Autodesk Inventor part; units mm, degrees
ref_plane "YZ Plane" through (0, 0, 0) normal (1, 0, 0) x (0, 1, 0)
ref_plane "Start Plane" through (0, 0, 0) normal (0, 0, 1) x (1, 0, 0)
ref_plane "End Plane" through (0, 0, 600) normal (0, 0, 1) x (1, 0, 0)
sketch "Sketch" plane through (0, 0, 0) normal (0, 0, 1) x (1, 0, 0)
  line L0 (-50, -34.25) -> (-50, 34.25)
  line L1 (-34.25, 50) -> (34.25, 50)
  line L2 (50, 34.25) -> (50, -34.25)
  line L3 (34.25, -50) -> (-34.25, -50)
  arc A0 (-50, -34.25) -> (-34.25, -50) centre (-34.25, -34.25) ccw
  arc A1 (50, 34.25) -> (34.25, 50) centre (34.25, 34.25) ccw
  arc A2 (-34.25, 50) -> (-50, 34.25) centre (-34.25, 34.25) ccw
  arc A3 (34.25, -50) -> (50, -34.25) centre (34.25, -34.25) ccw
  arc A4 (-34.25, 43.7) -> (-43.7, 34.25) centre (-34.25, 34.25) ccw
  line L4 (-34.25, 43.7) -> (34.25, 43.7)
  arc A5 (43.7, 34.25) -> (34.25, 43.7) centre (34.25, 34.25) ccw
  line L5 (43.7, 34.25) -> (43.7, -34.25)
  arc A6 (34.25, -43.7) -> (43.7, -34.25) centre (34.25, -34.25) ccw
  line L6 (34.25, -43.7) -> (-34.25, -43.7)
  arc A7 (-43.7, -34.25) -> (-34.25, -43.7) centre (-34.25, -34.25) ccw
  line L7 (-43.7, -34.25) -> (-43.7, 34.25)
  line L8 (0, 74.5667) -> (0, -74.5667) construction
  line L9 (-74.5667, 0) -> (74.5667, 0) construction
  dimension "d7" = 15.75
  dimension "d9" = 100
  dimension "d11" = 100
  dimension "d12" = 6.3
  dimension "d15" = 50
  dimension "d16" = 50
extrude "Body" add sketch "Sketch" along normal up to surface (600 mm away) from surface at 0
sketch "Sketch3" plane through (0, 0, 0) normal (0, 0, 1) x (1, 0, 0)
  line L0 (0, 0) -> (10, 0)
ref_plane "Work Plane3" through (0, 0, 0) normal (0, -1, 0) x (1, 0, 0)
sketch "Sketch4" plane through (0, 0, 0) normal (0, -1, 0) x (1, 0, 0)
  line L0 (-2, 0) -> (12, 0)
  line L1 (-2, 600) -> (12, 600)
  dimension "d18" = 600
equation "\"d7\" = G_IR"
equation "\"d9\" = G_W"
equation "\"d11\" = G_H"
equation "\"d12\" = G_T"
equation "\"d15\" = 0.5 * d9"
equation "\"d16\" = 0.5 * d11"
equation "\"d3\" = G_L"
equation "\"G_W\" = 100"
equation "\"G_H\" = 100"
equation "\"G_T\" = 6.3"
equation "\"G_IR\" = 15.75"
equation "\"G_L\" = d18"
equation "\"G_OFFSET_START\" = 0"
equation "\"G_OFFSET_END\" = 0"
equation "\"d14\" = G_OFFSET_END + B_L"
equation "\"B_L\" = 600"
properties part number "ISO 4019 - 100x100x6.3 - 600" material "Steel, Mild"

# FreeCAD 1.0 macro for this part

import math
import FreeCAD as App
import Part
import Sketcher

V = App.Vector
Q = App.Units.Quantity

doc = App.newDocument("Part")
body = doc.addObject("PartDesign::Body", "Body")

sketch1 = doc.addObject("Sketcher::SketchObject", "Sketch")
body.addObject(sketch1)
sketch1.AttachmentSupport = (doc.XY_Plane, [""])
sketch1.MapMode = "FlatFace"
sketch1.addGeometry([
    Part.LineSegment(V(-50, 34.25, 0), V(-50, -34.25, 0)),
    Part.ArcOfCircle(Part.Circle(V(-34.25, -34.25, 0), V(0, 0, 1), 15.75), math.radians(180), math.radians(270)),
    Part.LineSegment(V(-34.25, -50, 0), V(34.25, -50, 0)),
    Part.ArcOfCircle(Part.Circle(V(34.25, -34.25, 0), V(0, 0, 1), 15.75), math.radians(-90), math.radians(0)),
    Part.LineSegment(V(50, -34.25, 0), V(50, 34.25, 0)),
    Part.ArcOfCircle(Part.Circle(V(34.25, 34.25, 0), V(0, 0, 1), 15.75), math.radians(0), math.radians(90)),
    Part.LineSegment(V(34.25, 50, 0), V(-34.25, 50, 0)),
    Part.ArcOfCircle(Part.Circle(V(-34.25, 34.25, 0), V(0, 0, 1), 15.75), math.radians(90), math.radians(180)),
    Part.ArcOfCircle(Part.Circle(V(-34.25, 34.25, 0), V(0, 0, 1), 9.45), math.radians(90), math.radians(180)),
    Part.LineSegment(V(-34.25, 43.7, 0), V(34.25, 43.7, 0)),
    Part.ArcOfCircle(Part.Circle(V(34.25, 34.25, 0), V(0, 0, 1), 9.45), math.radians(0), math.radians(90)),
    Part.LineSegment(V(43.7, 34.25, 0), V(43.7, -34.25, 0)),
    Part.ArcOfCircle(Part.Circle(V(34.25, -34.25, 0), V(0, 0, 1), 9.45), math.radians(-90), math.radians(0)),
    Part.LineSegment(V(34.25, -43.7, 0), V(-34.25, -43.7, 0)),
    Part.ArcOfCircle(Part.Circle(V(-34.25, -34.25, 0), V(0, 0, 1), 9.45), math.radians(180), math.radians(270)),
    Part.LineSegment(V(-43.7, -34.25, 0), V(-43.7, 34.25, 0)),
], False)
sketch1.addConstraint([
    Sketcher.Constraint("Tangent", 0, 2, 1, 1),
    Sketcher.Constraint("Tangent", 1, 2, 2, 1),
    Sketcher.Constraint("Tangent", 2, 2, 3, 1),
    Sketcher.Constraint("Tangent", 3, 2, 4, 1),
    Sketcher.Constraint("Tangent", 4, 2, 5, 1),
    Sketcher.Constraint("Tangent", 5, 2, 6, 1),
    Sketcher.Constraint("Tangent", 6, 2, 7, 1),
    Sketcher.Constraint("Tangent", 7, 2, 0, 1),
    Sketcher.Constraint("Tangent", 8, 1, 9, 1),
    Sketcher.Constraint("Tangent", 9, 2, 10, 2),
    Sketcher.Constraint("Tangent", 10, 1, 11, 1),
    Sketcher.Constraint("Tangent", 11, 2, 12, 2),
    Sketcher.Constraint("Tangent", 12, 1, 13, 1),
    Sketcher.Constraint("Tangent", 13, 2, 14, 2),
    Sketcher.Constraint("Tangent", 14, 1, 15, 1),
    Sketcher.Constraint("Tangent", 15, 2, 8, 2),
    Sketcher.Constraint("Vertical", 0),
    Sketcher.Constraint("Horizontal", 2),
    Sketcher.Constraint("Vertical", 4),
    Sketcher.Constraint("Horizontal", 6),
    Sketcher.Constraint("Horizontal", 9),
    Sketcher.Constraint("Vertical", 11),
    Sketcher.Constraint("Horizontal", 13),
    Sketcher.Constraint("Vertical", 15),
    Sketcher.Constraint("Coincident", 8, 3, 7, 3),
    Sketcher.Constraint("Coincident", 10, 3, 5, 3),
    Sketcher.Constraint("Coincident", 12, 3, 3, 3),
    Sketcher.Constraint("Equal", 1, 3),
    Sketcher.Constraint("Equal", 3, 5),
    Sketcher.Constraint("Equal", 5, 7),
    Sketcher.Constraint("Equal", 12, 14),
    Sketcher.Constraint("Symmetric", 1, 3, 5, 3, -1, 1),
    Sketcher.Constraint("Equal", 13, 0),
    Sketcher.Constraint("Radius", 1, Q("15.75 mm")),
    Sketcher.Constraint("DistanceX", 0, 2, -1, 1, Q("50 mm")),
    Sketcher.Constraint("DistanceY", 8, 1, 6, 2, Q("6.3 mm")),
])
pad1 = doc.addObject("PartDesign::Pad", "Pad")
body.addObject(pad1)
pad1.Profile = sketch1
pad1.Length = 600

doc.recompute()
